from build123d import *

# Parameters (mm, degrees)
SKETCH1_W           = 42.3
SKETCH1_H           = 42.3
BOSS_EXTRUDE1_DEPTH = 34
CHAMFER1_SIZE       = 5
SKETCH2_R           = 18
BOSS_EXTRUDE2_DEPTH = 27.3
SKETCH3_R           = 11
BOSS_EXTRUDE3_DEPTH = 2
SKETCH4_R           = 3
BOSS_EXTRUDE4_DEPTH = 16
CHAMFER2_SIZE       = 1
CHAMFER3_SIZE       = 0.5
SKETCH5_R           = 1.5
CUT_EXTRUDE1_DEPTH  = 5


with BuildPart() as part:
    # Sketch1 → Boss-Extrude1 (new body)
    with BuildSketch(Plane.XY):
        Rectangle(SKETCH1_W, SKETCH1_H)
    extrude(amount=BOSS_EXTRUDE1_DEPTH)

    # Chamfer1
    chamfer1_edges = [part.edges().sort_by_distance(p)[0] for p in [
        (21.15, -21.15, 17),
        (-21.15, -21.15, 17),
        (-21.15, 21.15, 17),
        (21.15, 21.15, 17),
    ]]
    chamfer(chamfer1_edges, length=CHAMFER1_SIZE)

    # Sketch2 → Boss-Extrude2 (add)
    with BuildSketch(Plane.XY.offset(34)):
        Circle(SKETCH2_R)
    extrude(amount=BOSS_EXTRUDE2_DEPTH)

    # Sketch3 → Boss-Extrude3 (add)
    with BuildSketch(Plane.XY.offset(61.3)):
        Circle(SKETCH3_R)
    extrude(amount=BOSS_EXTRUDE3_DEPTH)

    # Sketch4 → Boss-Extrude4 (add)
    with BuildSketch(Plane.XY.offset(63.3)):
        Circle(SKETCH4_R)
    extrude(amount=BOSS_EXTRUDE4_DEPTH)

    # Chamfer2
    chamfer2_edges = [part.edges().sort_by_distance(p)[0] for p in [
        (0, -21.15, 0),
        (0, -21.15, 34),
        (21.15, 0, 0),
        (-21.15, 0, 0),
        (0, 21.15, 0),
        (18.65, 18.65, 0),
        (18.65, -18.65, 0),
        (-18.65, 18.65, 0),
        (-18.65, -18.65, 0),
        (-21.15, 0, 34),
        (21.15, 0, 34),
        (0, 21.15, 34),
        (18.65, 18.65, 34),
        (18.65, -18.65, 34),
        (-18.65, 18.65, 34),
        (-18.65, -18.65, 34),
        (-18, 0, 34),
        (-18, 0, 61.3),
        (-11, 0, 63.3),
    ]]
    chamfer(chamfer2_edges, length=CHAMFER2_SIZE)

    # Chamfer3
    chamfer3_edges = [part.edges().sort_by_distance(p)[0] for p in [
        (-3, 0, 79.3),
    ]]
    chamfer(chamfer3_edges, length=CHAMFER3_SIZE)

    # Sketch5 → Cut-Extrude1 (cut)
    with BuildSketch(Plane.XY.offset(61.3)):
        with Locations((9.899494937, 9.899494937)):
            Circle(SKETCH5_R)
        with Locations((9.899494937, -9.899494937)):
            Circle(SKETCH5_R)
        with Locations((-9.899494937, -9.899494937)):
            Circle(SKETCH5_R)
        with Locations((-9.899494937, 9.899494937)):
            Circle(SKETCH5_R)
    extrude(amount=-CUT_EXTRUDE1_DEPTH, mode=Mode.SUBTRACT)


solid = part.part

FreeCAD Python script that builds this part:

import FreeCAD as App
import Part
import Sketcher

V = App.Vector


def edges_at(feature, points):
    """Names of the edges that pass closest to the given points."""
    edges = feature.Shape.Edges
    near = lambda p: min(range(len(edges)), key=lambda i: edges[i].distToShape(Part.Vertex(*p))[0])
    return sorted({f"Edge{near(p) + 1}" for p in points})

doc = App.newDocument("Part")
body = doc.addObject("PartDesign::Body", "Body")

# Sketch on XY plane
sketch1 = doc.addObject("Sketcher::SketchObject", "Sketch")
body.addObject(sketch1)
sketch1.AttachmentSupport = (doc.XY_Plane, [""])
sketch1.MapMode = "FlatFace"
sketch1.addGeometry([
    Part.LineSegment(V(-21.15, 21.15, 0), V(-21.15, -21.15, 0)),
    Part.LineSegment(V(-21.15, -21.15, 0), V(21.15, -21.15, 0)),
    Part.LineSegment(V(21.15, -21.15, 0), V(21.15, 21.15, 0)),
    Part.LineSegment(V(21.15, 21.15, 0), V(-21.15, 21.15, 0)),
], False)
sketch1.addConstraint([
    Sketcher.Constraint("Coincident", 0, 2, 1, 1),
    Sketcher.Constraint("Coincident", 1, 2, 2, 1),
    Sketcher.Constraint("Coincident", 2, 2, 3, 1),
    Sketcher.Constraint("Coincident", 3, 2, 0, 1),
    Sketcher.Constraint("Vertical", 0),
    Sketcher.Constraint("Horizontal", 1),
    Sketcher.Constraint("Vertical", 2),
    Sketcher.Constraint("Horizontal", 3),
    Sketcher.Constraint("Symmetric", 0, 2, 2, 2, -1, 1),
    Sketcher.Constraint("Equal", 3, 0),
    Sketcher.Constraint("DistanceX", 1, 1, 1, 2, 42.3),
])
pad1 = doc.addObject("PartDesign::Pad", "Pad")
body.addObject(pad1)
pad1.Profile = sketch1
pad1.Length = 34
doc.recompute()

chamfer = doc.addObject("PartDesign::Chamfer", "Chamfer")
body.addObject(chamfer)
chamfer.Base = (pad1, edges_at(pad1, [
    (21.15, -21.15, 17),
    (-21.15, -21.15, 17),
    (-21.15, 21.15, 17),
    (21.15, 21.15, 17),
]))
chamfer.Size = 5

# Sketch on XY plane
sketch2 = doc.addObject("Sketcher::SketchObject", "Sketch001")
body.addObject(sketch2)
sketch2.AttachmentSupport = (doc.XY_Plane, [""])
sketch2.MapMode = "FlatFace"
sketch2.AttachmentOffset = App.Placement(V(0, 0, 34), App.Rotation())
sketch2.addGeometry(Part.Circle(V(0, 0, 0), V(0, 0, 1), 18), False)
sketch2.addConstraint([
    Sketcher.Constraint("Coincident", 0, 3, -1, 1),
    Sketcher.Constraint("Diameter", 0, 36.0),
])
pad2 = doc.addObject("PartDesign::Pad", "Pad001")
body.addObject(pad2)
pad2.Profile = sketch2
pad2.Length = 27.3

# Sketch on XY plane
sketch3 = doc.addObject("Sketcher::SketchObject", "Sketch002")
body.addObject(sketch3)
sketch3.AttachmentSupport = (doc.XY_Plane, [""])
sketch3.MapMode = "FlatFace"
sketch3.AttachmentOffset = App.Placement(V(0, 0, 61.3), App.Rotation())
sketch3.addGeometry(Part.Circle(V(0, 0, 0), V(0, 0, 1), 11), False)
sketch3.addConstraint([
    Sketcher.Constraint("Coincident", 0, 3, -1, 1),
    Sketcher.Constraint("Diameter", 0, 22.0),
])
pad3 = doc.addObject("PartDesign::Pad", "Pad002")
body.addObject(pad3)
pad3.Profile = sketch3
pad3.Length = 2

# Sketch on XY plane
sketch4 = doc.addObject("Sketcher::SketchObject", "Sketch003")
body.addObject(sketch4)
sketch4.AttachmentSupport = (doc.XY_Plane, [""])
sketch4.MapMode = "FlatFace"
sketch4.AttachmentOffset = App.Placement(V(0, 0, 63.3), App.Rotation())
sketch4.addGeometry(Part.Circle(V(0, 0, 0), V(0, 0, 1), 3), False)
sketch4.addConstraint([
    Sketcher.Constraint("Coincident", 0, 3, -1, 1),
    Sketcher.Constraint("Diameter", 0, 6.0),
])
pad4 = doc.addObject("PartDesign::Pad", "Pad003")
body.addObject(pad4)
pad4.Profile = sketch4
pad4.Length = 16
doc.recompute()

chamfer2 = doc.addObject("PartDesign::Chamfer", "Chamfer001")
body.addObject(chamfer2)
chamfer2.Base = (pad4, edges_at(pad4, [
    (0, -21.15, 0),
    (0, -21.15, 34),
    (21.15, 0, 0),
    (-21.15, 0, 0),
    (0, 21.15, 0),
    (18.65, 18.65, 0),
    (18.65, -18.65, 0),
    (-18.65, 18.65, 0),
    (-18.65, -18.65, 0),
    (-21.15, 0, 34),
    (21.15, 0, 34),
    (0, 21.15, 34),
    (18.65, 18.65, 34),
    (18.65, -18.65, 34),
    (-18.65, 18.65, 34),
    (-18.65, -18.65, 34),
    (-18, 0, 34),
    (-18, 0, 61.3),
    (-11, 0, 63.3),
]))
chamfer2.Size = 1
doc.recompute()

chamfer3 = doc.addObject("PartDesign::Chamfer", "Chamfer002")
body.addObject(chamfer3)
chamfer3.Base = (chamfer2, edges_at(chamfer2, [(-3, 0, 79.3)]))
chamfer3.Size = 0.5

# Sketch on XY plane
sketch5 = doc.addObject("Sketcher::SketchObject", "Sketch004")
body.addObject(sketch5)
sketch5.AttachmentSupport = (doc.XY_Plane, [""])
sketch5.MapMode = "FlatFace"
sketch5.AttachmentOffset = App.Placement(V(0, 0, 61.3), App.Rotation())
sketch5.addGeometry([
    Part.Circle(V(9.899495, 9.899495, 0), V(0, 0, 1), 1.5),
    Part.Circle(V(9.899495, -9.899495, 0), V(0, 0, 1), 1.5),
    Part.Circle(V(-9.899495, -9.899495, 0), V(0, 0, 1), 1.5),
    Part.Circle(V(-9.899495, 9.899495, 0), V(0, 0, 1), 1.5),
], False)
sketch5.addConstraint([
    Sketcher.Constraint("Equal", 0, 1),
    Sketcher.Constraint("Equal", 1, 2),
    Sketcher.Constraint("Equal", 2, 3),
    Sketcher.Constraint("Symmetric", 0, 3, 2, 3, -1, 1),
    Sketcher.Constraint("Symmetric", 1, 3, 3, 3, -1, 1),
    Sketcher.Constraint("Symmetric", 1, 3, 2, 3, -2),
    Sketcher.Constraint("Diameter", 0, 3.0),
    Sketcher.Constraint("DistanceY", 1, 3, 0, 3, 19.79899),
    Sketcher.Constraint("DistanceX", 2, 3, 1, 3, 19.79899),
])
pocket1 = doc.addObject("PartDesign::Pocket", "Pocket")
body.addObject(pocket1)
pocket1.Profile = sketch5
pocket1.Length = 5

doc.recompute()
